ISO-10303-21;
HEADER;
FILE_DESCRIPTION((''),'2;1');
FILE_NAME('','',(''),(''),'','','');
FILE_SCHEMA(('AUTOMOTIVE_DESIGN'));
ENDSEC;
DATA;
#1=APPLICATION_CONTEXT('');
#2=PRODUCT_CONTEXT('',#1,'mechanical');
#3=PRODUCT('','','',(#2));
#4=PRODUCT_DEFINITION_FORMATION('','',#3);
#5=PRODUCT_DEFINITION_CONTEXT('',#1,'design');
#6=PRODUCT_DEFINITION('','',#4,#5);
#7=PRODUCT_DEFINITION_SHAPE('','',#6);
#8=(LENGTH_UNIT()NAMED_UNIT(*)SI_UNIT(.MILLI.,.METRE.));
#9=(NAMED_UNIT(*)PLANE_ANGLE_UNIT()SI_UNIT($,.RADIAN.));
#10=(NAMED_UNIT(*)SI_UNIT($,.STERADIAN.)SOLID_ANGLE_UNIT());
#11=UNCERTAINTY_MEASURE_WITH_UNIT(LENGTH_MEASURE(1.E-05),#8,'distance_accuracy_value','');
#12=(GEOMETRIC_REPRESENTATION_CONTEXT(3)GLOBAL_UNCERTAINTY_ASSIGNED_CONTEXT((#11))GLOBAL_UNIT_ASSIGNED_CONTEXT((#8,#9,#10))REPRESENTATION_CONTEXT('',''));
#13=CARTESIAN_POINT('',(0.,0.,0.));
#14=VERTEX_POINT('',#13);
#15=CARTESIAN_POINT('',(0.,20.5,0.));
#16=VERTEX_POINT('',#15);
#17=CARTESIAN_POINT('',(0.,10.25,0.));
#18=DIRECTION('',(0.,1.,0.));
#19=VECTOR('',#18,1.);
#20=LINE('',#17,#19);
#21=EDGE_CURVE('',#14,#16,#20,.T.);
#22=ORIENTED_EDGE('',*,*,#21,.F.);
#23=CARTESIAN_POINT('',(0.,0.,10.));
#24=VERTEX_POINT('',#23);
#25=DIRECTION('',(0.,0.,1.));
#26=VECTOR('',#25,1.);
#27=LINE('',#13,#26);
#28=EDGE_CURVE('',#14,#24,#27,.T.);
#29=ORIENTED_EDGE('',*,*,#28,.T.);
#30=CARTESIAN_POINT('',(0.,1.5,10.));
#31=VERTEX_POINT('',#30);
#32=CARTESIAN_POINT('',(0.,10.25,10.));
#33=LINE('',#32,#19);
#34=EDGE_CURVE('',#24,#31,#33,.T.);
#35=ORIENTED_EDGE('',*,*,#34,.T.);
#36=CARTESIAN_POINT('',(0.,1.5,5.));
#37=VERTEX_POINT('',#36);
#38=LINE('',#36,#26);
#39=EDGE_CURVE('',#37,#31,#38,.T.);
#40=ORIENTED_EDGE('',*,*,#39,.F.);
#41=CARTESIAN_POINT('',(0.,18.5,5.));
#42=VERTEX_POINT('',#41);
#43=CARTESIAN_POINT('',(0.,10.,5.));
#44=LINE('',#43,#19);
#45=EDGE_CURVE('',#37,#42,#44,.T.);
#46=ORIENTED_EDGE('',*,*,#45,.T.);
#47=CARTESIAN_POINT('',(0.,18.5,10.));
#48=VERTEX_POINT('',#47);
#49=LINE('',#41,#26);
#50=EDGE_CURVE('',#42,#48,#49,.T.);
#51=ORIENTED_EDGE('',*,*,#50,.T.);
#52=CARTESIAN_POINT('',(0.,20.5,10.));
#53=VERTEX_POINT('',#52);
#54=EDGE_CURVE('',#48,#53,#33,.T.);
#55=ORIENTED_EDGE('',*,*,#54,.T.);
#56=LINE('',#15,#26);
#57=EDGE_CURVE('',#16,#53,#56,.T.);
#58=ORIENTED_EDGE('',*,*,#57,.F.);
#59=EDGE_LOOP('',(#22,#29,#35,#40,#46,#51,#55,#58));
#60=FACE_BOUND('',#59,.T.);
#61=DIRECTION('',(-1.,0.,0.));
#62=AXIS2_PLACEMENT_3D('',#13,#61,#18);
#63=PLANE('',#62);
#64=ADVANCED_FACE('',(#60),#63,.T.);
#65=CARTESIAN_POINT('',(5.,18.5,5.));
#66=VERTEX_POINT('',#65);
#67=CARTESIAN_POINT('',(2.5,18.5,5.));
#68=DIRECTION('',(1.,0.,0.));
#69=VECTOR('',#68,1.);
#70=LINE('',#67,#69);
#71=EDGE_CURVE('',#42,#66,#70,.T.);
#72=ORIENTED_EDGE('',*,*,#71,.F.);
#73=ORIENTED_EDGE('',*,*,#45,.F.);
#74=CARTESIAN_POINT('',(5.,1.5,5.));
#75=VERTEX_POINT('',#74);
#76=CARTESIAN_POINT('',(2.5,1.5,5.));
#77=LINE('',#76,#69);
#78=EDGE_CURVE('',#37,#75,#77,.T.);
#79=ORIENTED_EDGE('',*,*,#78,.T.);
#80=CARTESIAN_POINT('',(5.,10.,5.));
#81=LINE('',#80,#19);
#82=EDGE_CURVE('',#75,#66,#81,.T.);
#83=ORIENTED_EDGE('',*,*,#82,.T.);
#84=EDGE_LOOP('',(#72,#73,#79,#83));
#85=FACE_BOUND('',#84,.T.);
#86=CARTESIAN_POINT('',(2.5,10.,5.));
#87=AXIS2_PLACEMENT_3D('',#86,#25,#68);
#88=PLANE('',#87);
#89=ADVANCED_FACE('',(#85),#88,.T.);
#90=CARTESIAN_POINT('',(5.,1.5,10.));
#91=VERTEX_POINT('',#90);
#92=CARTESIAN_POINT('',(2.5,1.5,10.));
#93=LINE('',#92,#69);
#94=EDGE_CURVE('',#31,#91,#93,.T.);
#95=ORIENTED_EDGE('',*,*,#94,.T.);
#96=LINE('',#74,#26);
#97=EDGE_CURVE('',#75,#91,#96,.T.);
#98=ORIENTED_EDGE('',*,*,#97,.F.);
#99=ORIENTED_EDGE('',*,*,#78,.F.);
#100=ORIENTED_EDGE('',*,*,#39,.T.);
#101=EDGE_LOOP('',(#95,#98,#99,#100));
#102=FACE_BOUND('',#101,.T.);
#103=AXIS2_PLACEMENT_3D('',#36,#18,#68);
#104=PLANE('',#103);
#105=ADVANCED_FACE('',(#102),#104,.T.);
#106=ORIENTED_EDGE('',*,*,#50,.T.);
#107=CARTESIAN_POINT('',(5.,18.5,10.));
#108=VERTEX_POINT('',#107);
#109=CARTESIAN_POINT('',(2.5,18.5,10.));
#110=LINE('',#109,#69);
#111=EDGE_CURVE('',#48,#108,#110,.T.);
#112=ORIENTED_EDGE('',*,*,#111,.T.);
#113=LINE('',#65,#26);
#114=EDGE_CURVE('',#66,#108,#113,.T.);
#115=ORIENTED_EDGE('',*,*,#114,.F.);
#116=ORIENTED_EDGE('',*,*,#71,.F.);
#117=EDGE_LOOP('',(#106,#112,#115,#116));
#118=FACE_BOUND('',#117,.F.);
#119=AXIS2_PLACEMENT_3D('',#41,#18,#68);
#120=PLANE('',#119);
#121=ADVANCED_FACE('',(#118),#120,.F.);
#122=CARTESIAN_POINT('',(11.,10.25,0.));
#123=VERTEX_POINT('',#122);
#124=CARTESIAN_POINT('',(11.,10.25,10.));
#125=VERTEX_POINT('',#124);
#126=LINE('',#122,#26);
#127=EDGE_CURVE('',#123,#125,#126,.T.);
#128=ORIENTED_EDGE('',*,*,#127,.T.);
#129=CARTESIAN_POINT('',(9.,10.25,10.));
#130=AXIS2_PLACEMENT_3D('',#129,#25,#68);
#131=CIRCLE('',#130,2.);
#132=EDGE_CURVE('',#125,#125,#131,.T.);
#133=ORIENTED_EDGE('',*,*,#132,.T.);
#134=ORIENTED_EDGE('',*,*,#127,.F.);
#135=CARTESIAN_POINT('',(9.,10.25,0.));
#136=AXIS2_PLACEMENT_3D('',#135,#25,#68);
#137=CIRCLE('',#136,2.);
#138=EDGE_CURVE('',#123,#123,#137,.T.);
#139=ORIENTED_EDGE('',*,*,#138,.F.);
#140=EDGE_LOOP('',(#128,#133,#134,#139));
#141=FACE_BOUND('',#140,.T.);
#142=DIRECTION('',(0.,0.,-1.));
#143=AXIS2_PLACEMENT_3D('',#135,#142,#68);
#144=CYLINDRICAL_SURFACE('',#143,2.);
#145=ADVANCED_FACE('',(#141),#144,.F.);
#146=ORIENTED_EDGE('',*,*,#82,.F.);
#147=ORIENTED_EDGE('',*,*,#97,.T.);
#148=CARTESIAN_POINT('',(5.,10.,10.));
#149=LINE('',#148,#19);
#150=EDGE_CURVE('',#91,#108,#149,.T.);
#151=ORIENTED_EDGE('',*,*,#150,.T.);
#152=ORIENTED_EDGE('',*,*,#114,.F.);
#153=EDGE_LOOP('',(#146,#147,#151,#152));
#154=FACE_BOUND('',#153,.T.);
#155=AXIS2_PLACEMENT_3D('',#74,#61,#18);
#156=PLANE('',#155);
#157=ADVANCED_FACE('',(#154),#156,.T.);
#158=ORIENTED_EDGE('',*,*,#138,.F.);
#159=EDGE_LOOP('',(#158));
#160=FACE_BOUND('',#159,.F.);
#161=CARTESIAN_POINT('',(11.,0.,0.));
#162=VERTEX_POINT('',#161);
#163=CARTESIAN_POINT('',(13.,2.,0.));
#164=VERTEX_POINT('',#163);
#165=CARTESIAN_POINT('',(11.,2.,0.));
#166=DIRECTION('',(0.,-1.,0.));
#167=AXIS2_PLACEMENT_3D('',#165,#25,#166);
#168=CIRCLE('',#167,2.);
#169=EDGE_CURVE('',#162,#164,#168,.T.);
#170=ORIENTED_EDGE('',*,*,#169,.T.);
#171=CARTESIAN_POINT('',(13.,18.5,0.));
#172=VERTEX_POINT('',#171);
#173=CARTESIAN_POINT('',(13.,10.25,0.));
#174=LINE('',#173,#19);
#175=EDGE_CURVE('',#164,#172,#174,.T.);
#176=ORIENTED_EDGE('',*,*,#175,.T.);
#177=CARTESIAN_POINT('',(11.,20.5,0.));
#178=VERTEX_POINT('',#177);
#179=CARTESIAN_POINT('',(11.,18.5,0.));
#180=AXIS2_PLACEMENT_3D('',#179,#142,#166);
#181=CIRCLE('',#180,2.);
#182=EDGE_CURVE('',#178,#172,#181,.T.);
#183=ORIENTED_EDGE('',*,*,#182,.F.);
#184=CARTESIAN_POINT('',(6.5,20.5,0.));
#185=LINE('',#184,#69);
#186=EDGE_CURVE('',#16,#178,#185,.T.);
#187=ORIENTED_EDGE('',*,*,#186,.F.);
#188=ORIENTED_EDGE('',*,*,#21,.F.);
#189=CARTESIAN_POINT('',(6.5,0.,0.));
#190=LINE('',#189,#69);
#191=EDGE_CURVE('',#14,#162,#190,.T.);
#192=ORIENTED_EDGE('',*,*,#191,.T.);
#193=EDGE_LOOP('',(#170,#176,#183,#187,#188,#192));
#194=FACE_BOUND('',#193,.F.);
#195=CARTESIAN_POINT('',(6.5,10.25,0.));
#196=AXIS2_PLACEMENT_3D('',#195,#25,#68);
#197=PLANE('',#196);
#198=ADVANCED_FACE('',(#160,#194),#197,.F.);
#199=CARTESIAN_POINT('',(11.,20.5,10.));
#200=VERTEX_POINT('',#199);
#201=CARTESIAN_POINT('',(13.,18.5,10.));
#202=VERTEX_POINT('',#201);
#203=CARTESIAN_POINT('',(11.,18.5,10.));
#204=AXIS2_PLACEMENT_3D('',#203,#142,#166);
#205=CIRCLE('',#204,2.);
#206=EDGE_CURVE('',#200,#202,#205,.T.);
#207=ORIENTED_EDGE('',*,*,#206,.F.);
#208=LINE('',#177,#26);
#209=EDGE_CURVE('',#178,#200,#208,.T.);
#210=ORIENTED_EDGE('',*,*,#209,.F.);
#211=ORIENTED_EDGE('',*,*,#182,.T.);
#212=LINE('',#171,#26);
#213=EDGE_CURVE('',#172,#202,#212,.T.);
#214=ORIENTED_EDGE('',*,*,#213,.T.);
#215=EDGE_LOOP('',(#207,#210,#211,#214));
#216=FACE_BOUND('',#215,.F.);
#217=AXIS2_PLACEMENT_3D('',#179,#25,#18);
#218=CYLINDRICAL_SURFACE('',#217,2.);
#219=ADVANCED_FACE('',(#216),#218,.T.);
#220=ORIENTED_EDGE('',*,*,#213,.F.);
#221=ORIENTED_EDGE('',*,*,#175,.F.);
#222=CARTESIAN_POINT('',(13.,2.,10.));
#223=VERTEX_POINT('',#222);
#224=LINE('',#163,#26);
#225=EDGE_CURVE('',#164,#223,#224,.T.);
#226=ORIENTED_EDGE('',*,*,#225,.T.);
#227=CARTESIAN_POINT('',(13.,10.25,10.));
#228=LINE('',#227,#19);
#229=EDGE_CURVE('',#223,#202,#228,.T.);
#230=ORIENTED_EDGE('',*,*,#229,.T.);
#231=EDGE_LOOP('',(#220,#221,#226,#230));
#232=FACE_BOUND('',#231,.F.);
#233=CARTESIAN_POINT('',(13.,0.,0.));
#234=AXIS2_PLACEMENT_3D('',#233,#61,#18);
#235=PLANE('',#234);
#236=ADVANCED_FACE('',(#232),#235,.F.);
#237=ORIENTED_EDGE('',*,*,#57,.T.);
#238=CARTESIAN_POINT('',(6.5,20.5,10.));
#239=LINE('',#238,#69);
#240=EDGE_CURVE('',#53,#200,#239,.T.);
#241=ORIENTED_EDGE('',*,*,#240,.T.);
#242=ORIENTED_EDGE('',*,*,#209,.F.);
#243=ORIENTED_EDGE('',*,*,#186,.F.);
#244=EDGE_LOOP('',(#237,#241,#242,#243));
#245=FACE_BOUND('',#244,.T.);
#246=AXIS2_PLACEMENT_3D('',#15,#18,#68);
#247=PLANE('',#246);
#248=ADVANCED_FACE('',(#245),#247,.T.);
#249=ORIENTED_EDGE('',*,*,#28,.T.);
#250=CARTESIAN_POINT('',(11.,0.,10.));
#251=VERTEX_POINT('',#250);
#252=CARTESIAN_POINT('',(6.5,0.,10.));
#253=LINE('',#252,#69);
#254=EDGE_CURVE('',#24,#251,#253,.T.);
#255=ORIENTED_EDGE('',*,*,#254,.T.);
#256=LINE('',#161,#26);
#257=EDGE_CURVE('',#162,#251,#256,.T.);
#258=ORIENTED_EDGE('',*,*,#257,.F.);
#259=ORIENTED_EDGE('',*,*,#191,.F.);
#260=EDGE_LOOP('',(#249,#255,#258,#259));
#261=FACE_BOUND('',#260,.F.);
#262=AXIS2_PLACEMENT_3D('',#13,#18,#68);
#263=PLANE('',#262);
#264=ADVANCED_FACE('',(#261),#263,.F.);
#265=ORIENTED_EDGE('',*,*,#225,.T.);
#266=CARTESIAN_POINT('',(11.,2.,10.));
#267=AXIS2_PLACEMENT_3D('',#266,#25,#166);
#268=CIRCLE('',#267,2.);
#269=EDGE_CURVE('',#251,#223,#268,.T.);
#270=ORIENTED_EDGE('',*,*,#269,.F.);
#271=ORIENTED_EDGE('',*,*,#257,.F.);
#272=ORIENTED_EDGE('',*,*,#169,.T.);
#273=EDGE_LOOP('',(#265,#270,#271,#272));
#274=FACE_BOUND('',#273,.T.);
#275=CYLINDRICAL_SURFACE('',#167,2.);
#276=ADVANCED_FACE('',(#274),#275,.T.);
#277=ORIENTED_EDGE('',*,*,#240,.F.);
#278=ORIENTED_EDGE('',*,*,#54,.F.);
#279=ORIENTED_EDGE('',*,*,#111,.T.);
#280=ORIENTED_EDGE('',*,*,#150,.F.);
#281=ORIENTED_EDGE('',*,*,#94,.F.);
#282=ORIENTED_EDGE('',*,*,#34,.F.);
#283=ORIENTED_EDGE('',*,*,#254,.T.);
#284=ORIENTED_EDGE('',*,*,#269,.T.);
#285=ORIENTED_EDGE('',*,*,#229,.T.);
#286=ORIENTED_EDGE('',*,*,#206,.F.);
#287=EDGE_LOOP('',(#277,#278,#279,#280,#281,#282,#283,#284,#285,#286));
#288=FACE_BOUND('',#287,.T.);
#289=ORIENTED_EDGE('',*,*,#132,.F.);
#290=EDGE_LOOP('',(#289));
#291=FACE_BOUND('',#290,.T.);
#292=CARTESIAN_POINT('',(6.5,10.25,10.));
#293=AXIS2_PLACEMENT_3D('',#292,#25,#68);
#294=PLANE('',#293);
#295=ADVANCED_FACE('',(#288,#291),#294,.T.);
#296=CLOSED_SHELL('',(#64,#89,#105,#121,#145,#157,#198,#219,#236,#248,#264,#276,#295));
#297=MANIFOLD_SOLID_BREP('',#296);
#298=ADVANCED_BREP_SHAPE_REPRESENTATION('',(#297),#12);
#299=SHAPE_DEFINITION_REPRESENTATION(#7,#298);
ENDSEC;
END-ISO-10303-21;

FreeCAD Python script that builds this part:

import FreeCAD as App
import Part
import Sketcher

V = App.Vector


def edges_at(feature, points):
    """Names of the edges that pass closest to the given points."""
    edges = feature.Shape.Edges
    near = lambda p: min(range(len(edges)), key=lambda i: edges[i].distToShape(Part.Vertex(*p))[0])
    return sorted({f"Edge{near(p) + 1}" for p in points})


def add_polygon(sketch, points):
    """Adds a closed chain of lines whose ends are joined by coincident constraints."""
    first, n = sketch.GeometryCount, len(points)
    for a, b in zip(points, points[1:] + points[:1]):
        sketch.addGeometry(Part.LineSegment(App.Vector(*a, 0), App.Vector(*b, 0)), False)
    for i in range(n):
        sketch.addConstraint(Sketcher.Constraint("Coincident", first + i, 2, first + (i + 1) % n, 1))

doc = App.newDocument("Part")
body = doc.addObject("PartDesign::Body", "Body")

# Sketch on XY plane
sketch1 = doc.addObject("Sketcher::SketchObject", "Sketch")
body.addObject(sketch1)
sketch1.AttachmentSupport = (doc.XY_Plane, [""])
sketch1.MapMode = "FlatFace"
sketch1.addGeometry(Part.Circle(V(9, 10.2, 0), V(0, 0, 1), 2), False)
sketch1.addConstraint([
    Sketcher.Constraint("Diameter", 0, 4.0),
    Sketcher.Constraint("DistanceX", -1, 1, 0, 3, 9.0),
    Sketcher.Constraint("DistanceY", -1, 1, 0, 3, 10.25),
])
pad1 = doc.addObject("PartDesign::Pad", "Pad")
body.addObject(pad1)
pad1.Profile = sketch1
pad1.Length = 10
body2 = doc.addObject("PartDesign::Body", "Body001")

# Sketch on XY plane
sketch2 = doc.addObject("Sketcher::SketchObject", "Sketch001")
body2.addObject(sketch2)
sketch2.AttachmentSupport = (doc.getObject("XY_Plane001"), [""])
sketch2.MapMode = "FlatFace"
sketch2.AttachmentOffset = App.Placement(V(0, 0, 5), App.Rotation())
add_polygon(sketch2, [(0, 18), (0, 2), (5, 2), (5, 18)])  # lines 0-3
sketch2.addConstraint([
    Sketcher.Constraint("Vertical", 0),
    Sketcher.Constraint("Horizontal", 1),
    Sketcher.Constraint("Vertical", 2),
    Sketcher.Constraint("Horizontal", 3),
    Sketcher.Constraint("PointOnObject", 0, 2, -2),
    Sketcher.Constraint("DistanceX", 1, 1, 1, 2, 5.0),
    Sketcher.Constraint("DistanceY", 0, 2, 0, 1, 17.0),
    Sketcher.Constraint("DistanceY", -1, 1, 0, 2, 1.5),
])
pad2 = doc.addObject("PartDesign::Pad", "Pad001")
body2.addObject(pad2)
pad2.Profile = sketch2
pad2.Length = 5
body3 = doc.addObject("PartDesign::Body", "Body002")

# Sketch on XY plane
sketch3 = doc.addObject("Sketcher::SketchObject", "Sketch002")
body3.addObject(sketch3)
sketch3.AttachmentSupport = (doc.getObject("XY_Plane002"), [""])
sketch3.MapMode = "FlatFace"
add_polygon(sketch3, [(0, 20), (0, 0), (13, 0), (13, 20)])  # lines 0-3
sketch3.addConstraint([
    Sketcher.Constraint("Vertical", 0),
    Sketcher.Constraint("Horizontal", 1),
    Sketcher.Constraint("Vertical", 2),
    Sketcher.Constraint("Horizontal", 3),
    Sketcher.Constraint("Coincident", 0, 2, -1, 1),
    Sketcher.Constraint("DistanceX", 1, 1, 1, 2, 13.0),
    Sketcher.Constraint("DistanceY", 0, 2, 0, 1, 20.5),
])
pad3 = doc.addObject("PartDesign::Pad", "Pad002")
body3.addObject(pad3)
pad3.Profile = sketch3
pad3.Length = 10
doc.recompute()

boolean = doc.addObject("PartDesign::Boolean", "Boolean")
body3.addObject(boolean)
boolean.Type = "Cut"
boolean.addObjects([body2])
doc.recompute()

boolean2 = doc.addObject("PartDesign::Boolean", "Boolean001")
body3.addObject(boolean2)
boolean2.Type = "Cut"
boolean2.addObjects([body])
doc.recompute()

fillet = doc.addObject("PartDesign::Fillet", "Fillet")
body3.addObject(fillet)
fillet.Base = (boolean2, edges_at(boolean2, [(13, 20.5, 5), (13, 0, 5)]))
fillet.Radius = 2

doc.recompute()
